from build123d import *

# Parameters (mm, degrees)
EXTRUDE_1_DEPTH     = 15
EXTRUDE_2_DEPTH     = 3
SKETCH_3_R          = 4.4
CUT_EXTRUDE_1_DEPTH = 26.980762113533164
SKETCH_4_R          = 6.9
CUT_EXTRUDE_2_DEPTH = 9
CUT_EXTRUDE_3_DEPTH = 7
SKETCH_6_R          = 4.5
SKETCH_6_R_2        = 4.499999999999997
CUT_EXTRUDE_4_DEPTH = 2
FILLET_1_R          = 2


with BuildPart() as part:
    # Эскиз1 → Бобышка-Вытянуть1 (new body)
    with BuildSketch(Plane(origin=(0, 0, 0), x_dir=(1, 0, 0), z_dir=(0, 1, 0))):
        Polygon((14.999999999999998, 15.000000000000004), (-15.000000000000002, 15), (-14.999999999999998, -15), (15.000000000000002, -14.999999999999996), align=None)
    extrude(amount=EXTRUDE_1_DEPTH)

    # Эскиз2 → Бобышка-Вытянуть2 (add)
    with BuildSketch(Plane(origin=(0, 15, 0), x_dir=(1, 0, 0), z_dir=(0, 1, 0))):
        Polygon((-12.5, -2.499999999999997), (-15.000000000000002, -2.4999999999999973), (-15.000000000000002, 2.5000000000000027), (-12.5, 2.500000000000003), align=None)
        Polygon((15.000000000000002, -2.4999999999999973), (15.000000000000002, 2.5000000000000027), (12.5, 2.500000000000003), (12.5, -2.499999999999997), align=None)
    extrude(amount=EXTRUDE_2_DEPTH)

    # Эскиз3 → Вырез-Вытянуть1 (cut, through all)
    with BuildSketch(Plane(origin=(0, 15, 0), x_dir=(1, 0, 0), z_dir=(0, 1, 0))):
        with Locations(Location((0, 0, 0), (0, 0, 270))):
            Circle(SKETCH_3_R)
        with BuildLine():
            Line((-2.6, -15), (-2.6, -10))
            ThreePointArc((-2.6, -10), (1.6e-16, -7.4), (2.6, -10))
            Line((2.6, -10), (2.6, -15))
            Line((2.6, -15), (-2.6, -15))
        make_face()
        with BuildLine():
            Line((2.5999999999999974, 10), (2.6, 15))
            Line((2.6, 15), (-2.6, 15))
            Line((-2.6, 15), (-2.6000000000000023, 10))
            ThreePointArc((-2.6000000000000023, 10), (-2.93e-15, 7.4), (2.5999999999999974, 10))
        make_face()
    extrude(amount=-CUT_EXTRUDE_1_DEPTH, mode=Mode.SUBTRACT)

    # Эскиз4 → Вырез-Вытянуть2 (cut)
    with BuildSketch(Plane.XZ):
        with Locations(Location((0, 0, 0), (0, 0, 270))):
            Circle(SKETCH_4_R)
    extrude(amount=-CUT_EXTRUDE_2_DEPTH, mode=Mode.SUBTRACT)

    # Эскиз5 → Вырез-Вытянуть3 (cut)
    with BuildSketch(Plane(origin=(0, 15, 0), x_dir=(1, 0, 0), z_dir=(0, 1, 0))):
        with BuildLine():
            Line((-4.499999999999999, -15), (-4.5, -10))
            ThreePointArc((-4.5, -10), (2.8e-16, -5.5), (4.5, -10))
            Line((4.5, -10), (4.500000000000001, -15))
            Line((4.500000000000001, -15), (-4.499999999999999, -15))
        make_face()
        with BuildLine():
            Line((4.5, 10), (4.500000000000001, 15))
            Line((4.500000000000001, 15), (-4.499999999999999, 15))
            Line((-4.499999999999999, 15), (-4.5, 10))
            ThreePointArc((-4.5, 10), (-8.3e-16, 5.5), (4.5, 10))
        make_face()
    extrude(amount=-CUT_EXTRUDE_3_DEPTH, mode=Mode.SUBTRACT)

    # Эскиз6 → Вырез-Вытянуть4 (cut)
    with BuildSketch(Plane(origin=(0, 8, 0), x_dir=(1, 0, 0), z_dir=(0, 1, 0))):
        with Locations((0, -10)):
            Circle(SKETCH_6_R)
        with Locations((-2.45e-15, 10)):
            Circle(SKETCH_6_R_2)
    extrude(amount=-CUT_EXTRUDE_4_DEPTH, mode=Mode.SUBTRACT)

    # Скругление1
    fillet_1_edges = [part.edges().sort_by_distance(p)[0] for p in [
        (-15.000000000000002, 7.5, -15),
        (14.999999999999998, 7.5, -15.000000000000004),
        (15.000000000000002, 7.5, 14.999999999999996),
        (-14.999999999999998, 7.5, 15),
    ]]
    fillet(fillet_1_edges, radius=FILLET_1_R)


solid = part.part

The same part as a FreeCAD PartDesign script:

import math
import FreeCAD as App
import Part
import Sketcher
from FreeCAD import Vector
Q = App.Units.Quantity


def edges_at(feature, points):
    """Names of the edges that pass closest to the given points."""
    edges = feature.Shape.Edges
    near = lambda p: min(range(len(edges)), key=lambda i: edges[i].distToShape(Part.Vertex(*p))[0])
    return sorted({f"Edge{near(p) + 1}" for p in points})

doc = App.newDocument("Part")
params = doc.addObject("Spreadsheet::Sheet", "Params")
for row, (alias, value) in enumerate([
    ("sketch1_width", "30 mm"),
    ("pad1_length", "15 mm"),
    ("sketch2_height", "5 mm"),
    ("sketch2_width", "2.5 mm"),
    ("pad2_length", "3 mm"),
    ("sketch3_diameter", "8.8 mm"),
    ("sketch3_radius", "2.6 mm"),
    ("sketch3_height", "5 mm"),
    ("sketch4_diameter", "13.8 mm"),
    ("pocket2_length", "9 mm"),
    ("sketch5_radius", "4.5 mm"),
    ("sketch5_height", "5 mm"),
    ("pocket3_length", "7 mm"),
    ("sketch6_diameter", "9 mm"),
    ("pocket4_length", "2 mm"),
    ("fillet_radius", "2 mm"),
], start=1):
    params.set(f"A{row}", alias)
    params.set(f"B{row}", "=" + value)
    params.setAlias(f"B{row}", alias)

body = doc.addObject("PartDesign::Body", "Body")

# Sketch on XZ plane
sketch1 = body.newObject("Sketcher::SketchObject", "Sketch")
sketch1.AttachmentSupport = (doc.getObject("XZ_Plane"), [""])
sketch1.MapMode = "FlatFace"
sketch1.addGeometry([
    Part.LineSegment(Vector(15, -15, 0), Vector(-15, -15, 0)),
    Part.LineSegment(Vector(-15, -15, 0), Vector(-15, 15, 0)),
    Part.LineSegment(Vector(-15, 15, 0), Vector(15, 15, 0)),
    Part.LineSegment(Vector(15, 15, 0), Vector(15, -15, 0)),
], False)
sketch1.addConstraint([
    Sketcher.Constraint("Coincident", 0, 2, 1, 1),
    Sketcher.Constraint("Coincident", 1, 2, 2, 1),
    Sketcher.Constraint("Coincident", 2, 2, 3, 1),
    Sketcher.Constraint("Coincident", 3, 2, 0, 1),
    Sketcher.Constraint("Horizontal", 0),
    Sketcher.Constraint("Vertical", 1),
    Sketcher.Constraint("Horizontal", 2),
    Sketcher.Constraint("Vertical", 3),
    Sketcher.Constraint("Symmetric", 0, 2, 2, 2, -1, 1),
    Sketcher.Constraint("Equal", 2, 1),
    Sketcher.Constraint("DistanceX", 0, 2, 0, 1, Q("30 mm")),
])
sketch1.setExpression("Constraints[10]", "Params.sketch1_width")
pad1 = body.newObject("PartDesign::Pad", "Pad")
pad1.Profile = sketch1
pad1.setExpression("Length", "Params.pad1_length")
pad1.Reversed = True

# Sketch on XZ plane
sketch2 = body.newObject("Sketcher::SketchObject", "Sketch001")
sketch2.AttachmentSupport = (doc.getObject("XZ_Plane"), [""])
sketch2.MapMode = "FlatFace"
sketch2.AttachmentOffset = App.Placement(Vector(0, 0, -15), App.Rotation())
sketch2.addGeometry([
    Part.LineSegment(Vector(-15, 2.5, 0), Vector(-12.5, 2.5, 0)),  # 0
    Part.LineSegment(Vector(-12.5, 2.5, 0), Vector(-12.5, -2.5, 0)),  # 1
    Part.LineSegment(Vector(-12.5, -2.5, 0), Vector(-15, -2.5, 0)),  # 2
    Part.LineSegment(Vector(-15, -2.5, 0), Vector(-15, 2.5, 0)),  # 3
    Part.LineSegment(Vector(15, 2.5, 0), Vector(15, -2.5, 0)),  # 4
    Part.LineSegment(Vector(15, -2.5, 0), Vector(12.5, -2.5, 0)),  # 5
    Part.LineSegment(Vector(12.5, -2.5, 0), Vector(12.5, 2.5, 0)),  # 6
    Part.LineSegment(Vector(12.5, 2.5, 0), Vector(15, 2.5, 0)),  # 7
], False)
sketch2.addConstraint([
    Sketcher.Constraint("Coincident", 0, 2, 1, 1),
    Sketcher.Constraint("Coincident", 1, 2, 2, 1),
    Sketcher.Constraint("Coincident", 2, 2, 3, 1),
    Sketcher.Constraint("Coincident", 3, 2, 0, 1),
    Sketcher.Constraint("Coincident", 4, 2, 5, 1),
    Sketcher.Constraint("Coincident", 5, 2, 6, 1),
    Sketcher.Constraint("Coincident", 6, 2, 7, 1),
    Sketcher.Constraint("Coincident", 7, 2, 4, 1),
    Sketcher.Constraint("Horizontal", 0),
    Sketcher.Constraint("Vertical", 1),
    Sketcher.Constraint("Horizontal", 2),
    Sketcher.Constraint("Vertical", 3),
    Sketcher.Constraint("Vertical", 4),
    Sketcher.Constraint("Horizontal", 5),
    Sketcher.Constraint("Vertical", 6),
    Sketcher.Constraint("Horizontal", 7),
    Sketcher.Constraint("Symmetric", 3, 2, 4, 2, -1, 1),
    Sketcher.Constraint("Symmetric", 1, 2, 6, 2, -1, 1),
    Sketcher.Constraint("Horizontal", 2, 2, 4, 2),
    Sketcher.Constraint("DistanceY", 1, 2, 1, 1, Q("5 mm")),
    Sketcher.Constraint("DistanceX", 0, 1, 0, 2, Q("2.5 mm")),
    Sketcher.Constraint("DistanceX", 2, 2, -1, 1, Q("15 mm")),
])
sketch2.setExpression("Constraints[19]", "Params.sketch2_height")
sketch2.setExpression("Constraints[20]", "Params.sketch2_width")
pad2 = body.newObject("PartDesign::Pad", "Pad001")
pad2.Profile = sketch2
pad2.setExpression("Length", "Params.pad2_length")
pad2.Reversed = True

# Sketch on XZ plane
sketch3 = body.newObject("Sketcher::SketchObject", "Sketch002")
sketch3.AttachmentSupport = (doc.getObject("XZ_Plane"), [""])
sketch3.MapMode = "FlatFace"
sketch3.AttachmentOffset = App.Placement(Vector(0, 0, -15), App.Rotation())
sketch3.addGeometry([
    Part.Circle(Vector(0, 0, 0), Vector(0, 0, 1), 4.4),  # 0
    Part.LineSegment(Vector(-2.6, 10, 0), Vector(-2.6, 15, 0)),  # 1
    Part.LineSegment(Vector(-2.6, 15, 0), Vector(2.6, 15, 0)),  # 2
    Part.LineSegment(Vector(2.6, 15, 0), Vector(2.6, 10, 0)),  # 3
    Part.ArcOfCircle(Part.Circle(Vector(0, 10, 0), Vector(0, 0, 1), 2.6), math.radians(180), math.radians(360)),  # 4
    Part.LineSegment(Vector(2.6, -10, 0), Vector(2.6, -15, 0)),  # 5
    Part.LineSegment(Vector(2.6, -15, 0), Vector(-2.6, -15, 0)),  # 6
    Part.LineSegment(Vector(-2.6, -15, 0), Vector(-2.6, -10, 0)),  # 7
    Part.ArcOfCircle(Part.Circle(Vector(0, -10, 0), Vector(0, 0, 1), 2.6), math.radians(0), math.radians(180)),  # 8
], False)
sketch3.addConstraint([
    Sketcher.Constraint("Coincident", 1, 2, 2, 1),
    Sketcher.Constraint("Coincident", 2, 2, 3, 1),
    Sketcher.Constraint("Tangent", 3, 2, 4, 2),
    Sketcher.Constraint("Tangent", 4, 1, 1, 1),
    Sketcher.Constraint("Coincident", 5, 2, 6, 1),
    Sketcher.Constraint("Coincident", 6, 2, 7, 1),
    Sketcher.Constraint("Tangent", 7, 2, 8, 2),
    Sketcher.Constraint("Tangent", 8, 1, 5, 1),
    Sketcher.Constraint("Vertical", 1),
    Sketcher.Constraint("Horizontal", 2),
    Sketcher.Constraint("Vertical", 3),
    Sketcher.Constraint("Vertical", 5),
    Sketcher.Constraint("Horizontal", 6),
    Sketcher.Constraint("Vertical", 7),
    Sketcher.Constraint("Coincident", 0, 3, -1, 1),
    Sketcher.Constraint("Equal", 4, 8),
    Sketcher.Constraint("Symmetric", 4, 3, 8, 3, -1, 1),
    Sketcher.Constraint("Symmetric", 2, 2, 5, 2, -1),
    Sketcher.Constraint("Diameter", 0, Q("8.8 mm")),
    Sketcher.Constraint("Radius", 4, Q("2.6 mm")),
    Sketcher.Constraint("DistanceY", 1, 1, 1, 2, Q("5 mm")),
    Sketcher.Constraint("DistanceY", -1, 1, 4, 3, Q("10 mm")),
])
sketch3.setExpression("Constraints[18]", "Params.sketch3_diameter")
sketch3.setExpression("Constraints[19]", "Params.sketch3_radius")
sketch3.setExpression("Constraints[20]", "Params.sketch3_height")
pocket1 = body.newObject("PartDesign::Pocket", "Pocket")
pocket1.Profile = sketch3
pocket1.Type = "ThroughAll"
pocket1.Reversed = True

# Sketch on XZ plane
sketch4 = body.newObject("Sketcher::SketchObject", "Sketch003")
sketch4.AttachmentSupport = (doc.getObject("XZ_Plane"), [""])
sketch4.MapMode = "FlatFace"
sketch4.addGeometry(Part.Circle(Vector(0, 0, 0), Vector(0, 0, 1), 7), False)
sketch4.addConstraint([
    Sketcher.Constraint("Coincident", 0, 3, -1, 1),
    Sketcher.Constraint("Diameter", 0, Q("13.8 mm")),
])
sketch4.setExpression("Constraints[1]", "Params.sketch4_diameter")
pocket2 = body.newObject("PartDesign::Pocket", "Pocket001")
pocket2.Profile = sketch4
pocket2.setExpression("Length", "Params.pocket2_length")

# Sketch on XZ plane
sketch5 = body.newObject("Sketcher::SketchObject", "Sketch004")
sketch5.AttachmentSupport = (doc.getObject("XZ_Plane"), [""])
sketch5.MapMode = "FlatFace"
sketch5.AttachmentOffset = App.Placement(Vector(0, 0, -15), App.Rotation())
sketch5.addGeometry([
    Part.LineSegment(Vector(-4.5, 10, 0), Vector(-4.5, 15, 0)),  # 0
    Part.LineSegment(Vector(-4.5, 15, 0), Vector(4.5, 15, 0)),  # 1
    Part.LineSegment(Vector(4.5, 15, 0), Vector(4.5, 10, 0)),  # 2
    Part.ArcOfCircle(Part.Circle(Vector(0, 10, 0), Vector(0, 0, 1), 4.5), math.radians(180), math.radians(360)),  # 3
    Part.LineSegment(Vector(4.5, -10, 0), Vector(4.5, -15, 0)),  # 4
    Part.LineSegment(Vector(4.5, -15, 0), Vector(-4.5, -15, 0)),  # 5
    Part.LineSegment(Vector(-4.5, -15, 0), Vector(-4.5, -10, 0)),  # 6
    Part.ArcOfCircle(Part.Circle(Vector(0, -10, 0), Vector(0, 0, 1), 4.5), math.radians(0), math.radians(180)),  # 7
], False)
sketch5.addConstraint([
    Sketcher.Constraint("Coincident", 0, 2, 1, 1),
    Sketcher.Constraint("Coincident", 1, 2, 2, 1),
    Sketcher.Constraint("Tangent", 2, 2, 3, 2),
    Sketcher.Constraint("Tangent", 3, 1, 0, 1),
    Sketcher.Constraint("Coincident", 4, 2, 5, 1),
    Sketcher.Constraint("Coincident", 5, 2, 6, 1),
    Sketcher.Constraint("Tangent", 6, 2, 7, 2),
    Sketcher.Constraint("Tangent", 7, 1, 4, 1),
    Sketcher.Constraint("Vertical", 0),
    Sketcher.Constraint("Horizontal", 1),
    Sketcher.Constraint("Vertical", 2),
    Sketcher.Constraint("Vertical", 4),
    Sketcher.Constraint("Horizontal", 5),
    Sketcher.Constraint("Vertical", 6),
    Sketcher.Constraint("Equal", 3, 7),
    Sketcher.Constraint("Symmetric", 3, 3, 7, 3, -1, 1),
    Sketcher.Constraint("Symmetric", 1, 2, 4, 2, -1),
    Sketcher.Constraint("Radius", 3, Q("4.5 mm")),
    Sketcher.Constraint("DistanceY", 0, 1, 0, 2, Q("5 mm")),
    Sketcher.Constraint("DistanceY", -1, 1, 3, 3, Q("10 mm")),
])
sketch5.setExpression("Constraints[17]", "Params.sketch5_radius")
sketch5.setExpression("Constraints[18]", "Params.sketch5_height")
pocket3 = body.newObject("PartDesign::Pocket", "Pocket002")
pocket3.Profile = sketch5
pocket3.setExpression("Length", "Params.pocket3_length")
pocket3.Reversed = True

# Sketch on XZ plane
sketch6 = body.newObject("Sketcher::SketchObject", "Sketch005")
sketch6.AttachmentSupport = (doc.getObject("XZ_Plane"), [""])
sketch6.MapMode = "FlatFace"
sketch6.AttachmentOffset = App.Placement(Vector(0, 0, -8), App.Rotation())
sketch6.addGeometry([
    Part.Circle(Vector(0, 10, 0), Vector(0, 0, 1), 4.5),
    Part.Circle(Vector(0, -10, 0), Vector(0, 0, 1), 4.5),
], False)
sketch6.addConstraint([
    Sketcher.Constraint("Equal", 0, 1),
    Sketcher.Constraint("Symmetric", 0, 3, 1, 3, -1, 1),
    Sketcher.Constraint("PointOnObject", 0, 3, -2),
    Sketcher.Constraint("Diameter", 0, Q("9 mm")),
    Sketcher.Constraint("DistanceY", -1, 1, 0, 3, Q("10 mm")),
])
sketch6.setExpression("Constraints[3]", "Params.sketch6_diameter")
pocket4 = body.newObject("PartDesign::Pocket", "Pocket003")
pocket4.Profile = sketch6
pocket4.setExpression("Length", "Params.pocket4_length")
pocket4.Reversed = True
doc.recompute()

fillet = body.newObject("PartDesign::Fillet", "Fillet")
fillet.Base = (pocket4, edges_at(pocket4, [
    (-15, 7.5, -15),
    (15, 7.5, -15),
    (15, 7.5, 15),
    (-15, 7.5, 15),
]))
fillet.setExpression("Radius", "Params.fillet_radius")

doc.recompute()
